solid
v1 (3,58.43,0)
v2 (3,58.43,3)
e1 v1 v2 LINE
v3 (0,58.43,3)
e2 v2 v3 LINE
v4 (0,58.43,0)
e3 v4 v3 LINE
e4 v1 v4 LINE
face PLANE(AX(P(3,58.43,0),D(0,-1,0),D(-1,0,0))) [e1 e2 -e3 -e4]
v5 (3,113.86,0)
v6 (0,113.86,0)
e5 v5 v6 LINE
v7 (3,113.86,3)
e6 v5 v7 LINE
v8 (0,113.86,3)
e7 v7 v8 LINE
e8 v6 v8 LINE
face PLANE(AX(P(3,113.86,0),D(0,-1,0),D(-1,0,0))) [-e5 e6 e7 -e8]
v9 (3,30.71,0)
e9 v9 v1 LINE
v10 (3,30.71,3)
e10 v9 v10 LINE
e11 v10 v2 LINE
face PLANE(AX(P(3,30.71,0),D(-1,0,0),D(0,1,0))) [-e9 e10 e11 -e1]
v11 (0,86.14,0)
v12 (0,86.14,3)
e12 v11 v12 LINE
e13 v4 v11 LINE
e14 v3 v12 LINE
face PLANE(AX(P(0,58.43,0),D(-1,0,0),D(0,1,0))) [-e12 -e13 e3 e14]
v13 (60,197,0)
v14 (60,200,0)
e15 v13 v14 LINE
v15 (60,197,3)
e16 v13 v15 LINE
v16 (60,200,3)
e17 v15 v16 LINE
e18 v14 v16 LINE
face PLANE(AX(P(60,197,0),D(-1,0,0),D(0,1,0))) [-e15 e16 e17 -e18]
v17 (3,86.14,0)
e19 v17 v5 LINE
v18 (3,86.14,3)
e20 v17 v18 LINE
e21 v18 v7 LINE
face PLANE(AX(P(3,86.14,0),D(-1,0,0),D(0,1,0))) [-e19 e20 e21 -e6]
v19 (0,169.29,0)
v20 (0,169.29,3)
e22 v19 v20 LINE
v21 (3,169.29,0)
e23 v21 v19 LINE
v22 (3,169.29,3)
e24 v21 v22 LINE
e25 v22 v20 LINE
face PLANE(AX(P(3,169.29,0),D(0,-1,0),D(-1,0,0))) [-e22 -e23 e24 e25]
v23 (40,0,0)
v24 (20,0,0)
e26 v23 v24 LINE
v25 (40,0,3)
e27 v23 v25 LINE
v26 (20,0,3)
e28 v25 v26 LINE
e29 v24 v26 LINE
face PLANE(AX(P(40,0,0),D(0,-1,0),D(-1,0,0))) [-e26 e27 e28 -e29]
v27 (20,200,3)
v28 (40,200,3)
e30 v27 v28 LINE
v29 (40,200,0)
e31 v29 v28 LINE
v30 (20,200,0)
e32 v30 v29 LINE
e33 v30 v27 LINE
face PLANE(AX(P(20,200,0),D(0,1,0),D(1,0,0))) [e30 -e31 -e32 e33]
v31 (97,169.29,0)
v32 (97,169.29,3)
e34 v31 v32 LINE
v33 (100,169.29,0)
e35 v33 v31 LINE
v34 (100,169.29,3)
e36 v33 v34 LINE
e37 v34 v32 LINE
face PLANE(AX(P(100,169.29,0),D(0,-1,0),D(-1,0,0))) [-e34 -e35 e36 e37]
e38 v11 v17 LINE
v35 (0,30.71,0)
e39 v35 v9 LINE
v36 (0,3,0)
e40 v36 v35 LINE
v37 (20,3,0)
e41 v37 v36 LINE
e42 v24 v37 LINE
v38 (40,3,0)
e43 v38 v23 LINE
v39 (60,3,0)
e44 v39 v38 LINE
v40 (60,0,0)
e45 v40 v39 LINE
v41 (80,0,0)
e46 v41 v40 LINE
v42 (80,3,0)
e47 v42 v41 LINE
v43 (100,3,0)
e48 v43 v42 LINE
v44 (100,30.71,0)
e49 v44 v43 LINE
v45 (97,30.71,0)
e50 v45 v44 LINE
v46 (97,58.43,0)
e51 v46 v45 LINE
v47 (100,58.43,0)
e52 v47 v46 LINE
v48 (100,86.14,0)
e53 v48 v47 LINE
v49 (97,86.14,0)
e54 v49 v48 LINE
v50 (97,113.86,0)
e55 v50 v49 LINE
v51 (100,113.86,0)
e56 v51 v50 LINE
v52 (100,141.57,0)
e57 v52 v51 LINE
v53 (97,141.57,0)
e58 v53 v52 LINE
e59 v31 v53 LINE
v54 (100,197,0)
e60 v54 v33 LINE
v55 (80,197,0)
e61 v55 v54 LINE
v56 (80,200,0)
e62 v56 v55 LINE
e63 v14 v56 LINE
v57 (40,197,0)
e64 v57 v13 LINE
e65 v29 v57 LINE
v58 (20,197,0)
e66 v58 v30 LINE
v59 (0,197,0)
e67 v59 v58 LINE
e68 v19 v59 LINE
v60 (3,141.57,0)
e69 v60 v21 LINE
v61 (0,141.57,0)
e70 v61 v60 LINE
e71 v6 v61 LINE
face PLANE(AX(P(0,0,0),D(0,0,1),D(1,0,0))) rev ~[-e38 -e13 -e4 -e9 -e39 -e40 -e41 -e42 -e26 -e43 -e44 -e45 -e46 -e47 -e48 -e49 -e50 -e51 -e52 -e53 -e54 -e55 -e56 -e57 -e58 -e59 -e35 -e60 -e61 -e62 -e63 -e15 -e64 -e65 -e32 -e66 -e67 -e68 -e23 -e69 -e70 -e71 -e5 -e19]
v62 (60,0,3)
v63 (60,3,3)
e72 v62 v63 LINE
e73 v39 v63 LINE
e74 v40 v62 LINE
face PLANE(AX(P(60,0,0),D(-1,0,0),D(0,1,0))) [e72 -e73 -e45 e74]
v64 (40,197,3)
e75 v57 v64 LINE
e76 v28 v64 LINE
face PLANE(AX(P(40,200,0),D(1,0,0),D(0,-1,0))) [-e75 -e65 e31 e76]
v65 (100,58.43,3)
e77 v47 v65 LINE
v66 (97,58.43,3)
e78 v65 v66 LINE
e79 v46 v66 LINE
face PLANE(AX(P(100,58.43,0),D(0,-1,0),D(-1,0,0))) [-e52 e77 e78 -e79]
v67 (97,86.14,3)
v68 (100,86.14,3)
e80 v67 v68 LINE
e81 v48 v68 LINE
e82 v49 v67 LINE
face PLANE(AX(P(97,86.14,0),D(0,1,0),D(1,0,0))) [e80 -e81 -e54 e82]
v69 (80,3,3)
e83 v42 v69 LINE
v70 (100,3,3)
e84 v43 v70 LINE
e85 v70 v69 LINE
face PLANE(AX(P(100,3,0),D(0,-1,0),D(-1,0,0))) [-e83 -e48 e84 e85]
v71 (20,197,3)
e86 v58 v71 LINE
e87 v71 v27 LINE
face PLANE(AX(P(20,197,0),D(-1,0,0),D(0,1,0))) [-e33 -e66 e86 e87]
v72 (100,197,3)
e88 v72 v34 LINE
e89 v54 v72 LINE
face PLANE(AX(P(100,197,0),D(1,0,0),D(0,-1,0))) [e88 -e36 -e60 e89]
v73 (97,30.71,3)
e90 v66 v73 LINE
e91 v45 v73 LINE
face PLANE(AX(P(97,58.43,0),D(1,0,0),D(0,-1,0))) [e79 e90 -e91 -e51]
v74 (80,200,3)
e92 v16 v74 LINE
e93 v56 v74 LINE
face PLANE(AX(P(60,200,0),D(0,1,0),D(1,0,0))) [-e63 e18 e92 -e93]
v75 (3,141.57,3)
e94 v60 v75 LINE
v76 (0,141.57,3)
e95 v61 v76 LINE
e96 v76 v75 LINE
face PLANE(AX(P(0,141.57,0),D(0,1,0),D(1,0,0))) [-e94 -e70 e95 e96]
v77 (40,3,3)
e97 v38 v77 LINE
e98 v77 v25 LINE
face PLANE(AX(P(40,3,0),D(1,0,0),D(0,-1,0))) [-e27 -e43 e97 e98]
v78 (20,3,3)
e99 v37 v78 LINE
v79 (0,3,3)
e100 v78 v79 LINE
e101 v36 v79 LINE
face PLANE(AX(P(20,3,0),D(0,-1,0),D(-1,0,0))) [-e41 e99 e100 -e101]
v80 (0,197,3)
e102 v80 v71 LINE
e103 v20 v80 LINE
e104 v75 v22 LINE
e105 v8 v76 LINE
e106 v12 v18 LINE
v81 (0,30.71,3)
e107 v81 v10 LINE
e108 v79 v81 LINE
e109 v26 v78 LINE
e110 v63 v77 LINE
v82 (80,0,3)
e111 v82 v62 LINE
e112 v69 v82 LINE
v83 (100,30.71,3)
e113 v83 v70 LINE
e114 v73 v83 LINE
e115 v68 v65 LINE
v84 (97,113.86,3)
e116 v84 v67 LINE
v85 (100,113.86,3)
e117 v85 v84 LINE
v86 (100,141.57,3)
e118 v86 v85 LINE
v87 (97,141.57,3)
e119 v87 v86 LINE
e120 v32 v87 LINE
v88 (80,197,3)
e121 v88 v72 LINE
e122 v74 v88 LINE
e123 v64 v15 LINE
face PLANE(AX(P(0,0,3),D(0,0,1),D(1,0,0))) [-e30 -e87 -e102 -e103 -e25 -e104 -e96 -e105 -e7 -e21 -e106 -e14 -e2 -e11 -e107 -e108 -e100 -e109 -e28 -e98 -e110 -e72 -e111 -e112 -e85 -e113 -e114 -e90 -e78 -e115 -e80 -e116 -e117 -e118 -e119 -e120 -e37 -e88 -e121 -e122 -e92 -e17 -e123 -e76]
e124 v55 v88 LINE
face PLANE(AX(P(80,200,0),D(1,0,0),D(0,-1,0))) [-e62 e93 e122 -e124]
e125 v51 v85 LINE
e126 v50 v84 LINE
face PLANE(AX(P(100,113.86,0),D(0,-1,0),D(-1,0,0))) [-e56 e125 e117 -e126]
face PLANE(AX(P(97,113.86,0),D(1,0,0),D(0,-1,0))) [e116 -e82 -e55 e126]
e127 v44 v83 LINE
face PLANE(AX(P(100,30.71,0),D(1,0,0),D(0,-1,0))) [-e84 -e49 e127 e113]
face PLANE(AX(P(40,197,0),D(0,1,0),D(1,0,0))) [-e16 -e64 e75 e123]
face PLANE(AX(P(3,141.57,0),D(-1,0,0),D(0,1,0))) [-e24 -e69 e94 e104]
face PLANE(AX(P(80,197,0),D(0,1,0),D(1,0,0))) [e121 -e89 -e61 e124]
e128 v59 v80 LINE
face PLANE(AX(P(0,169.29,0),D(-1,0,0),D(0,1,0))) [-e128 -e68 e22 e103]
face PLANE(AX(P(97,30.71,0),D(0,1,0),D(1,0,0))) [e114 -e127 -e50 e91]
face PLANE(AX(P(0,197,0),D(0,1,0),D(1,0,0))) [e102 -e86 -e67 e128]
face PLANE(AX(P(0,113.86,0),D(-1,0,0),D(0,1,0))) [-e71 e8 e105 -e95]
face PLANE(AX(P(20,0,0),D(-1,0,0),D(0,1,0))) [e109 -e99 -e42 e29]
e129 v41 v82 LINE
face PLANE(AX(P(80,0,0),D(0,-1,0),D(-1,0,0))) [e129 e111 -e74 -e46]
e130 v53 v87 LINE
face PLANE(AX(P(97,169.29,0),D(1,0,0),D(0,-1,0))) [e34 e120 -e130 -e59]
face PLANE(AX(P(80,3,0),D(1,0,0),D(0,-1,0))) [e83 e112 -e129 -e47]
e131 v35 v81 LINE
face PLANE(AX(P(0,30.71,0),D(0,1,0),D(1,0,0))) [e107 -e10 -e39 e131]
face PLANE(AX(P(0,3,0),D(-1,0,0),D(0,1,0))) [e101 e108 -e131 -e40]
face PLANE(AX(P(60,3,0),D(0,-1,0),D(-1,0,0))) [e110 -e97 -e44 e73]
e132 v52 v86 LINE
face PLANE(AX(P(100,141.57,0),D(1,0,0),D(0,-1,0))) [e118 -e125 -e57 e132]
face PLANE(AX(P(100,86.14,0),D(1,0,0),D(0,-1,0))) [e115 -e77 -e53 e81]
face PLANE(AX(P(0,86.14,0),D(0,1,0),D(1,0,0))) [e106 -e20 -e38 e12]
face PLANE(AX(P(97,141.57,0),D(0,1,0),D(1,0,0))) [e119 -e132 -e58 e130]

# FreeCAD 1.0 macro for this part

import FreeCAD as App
import Part
import Sketcher
Q = App.Units.Quantity


def add_polygon(sketch, points):
    """Adds a closed chain of lines whose ends are joined by coincident constraints."""
    first, n = sketch.GeometryCount, len(points)
    for a, b in zip(points, points[1:] + points[:1]):
        sketch.addGeometry(Part.LineSegment(App.Vector(*a, 0), App.Vector(*b, 0)), False)
    for i in range(n):
        sketch.addConstraint(Sketcher.Constraint("Coincident", first + i, 2, first + (i + 1) % n, 1))

doc = App.newDocument("Part")
params = doc.addObject("Spreadsheet::Sheet", "Params")
for row, (alias, value) in enumerate([
    ("sketch1_width", "20 mm"),
    ("sketch1_width2", "3 mm"),
    ("sketch1_height", "27.71 mm"),
    ("sketch1_height2", "27.72 mm"),
    ("pad1_length", "3 mm"),
], start=1):
    params.set(f"A{row}", alias)
    params.set(f"B{row}", "=" + value)
    params.setAlias(f"B{row}", alias)

body = doc.addObject("PartDesign::Body", "Body")

# Sketch on XY plane
sketch1 = body.newObject("Sketcher::SketchObject", "Sketch")
sketch1.AttachmentSupport = (doc.getObject("XY_Plane"), [""])
sketch1.MapMode = "FlatFace"
add_polygon(sketch1, [(20, 3), (20, 0), (40, 0), (40, 3), (60, 3), (60, 0), (80, 0), (80, 3), (100, 3), (100, 30.71), (97, 30.71), (97, 58.43), (100, 58.43), (100, 86.14), (97, 86.14), (97, 113.86), (100, 113.86), (100, 141.57), (97, 141.57), (97, 169.29), (100, 169.29), (100, 197), (80, 197), (80, 200), (60, 200), (60, 197), (40, 197), (40, 200), (20, 200), (20, 197), (0, 197), (0, 169.29), (3, 169.29), (3, 141.57), (0, 141.57), (0, 113.86), (3, 113.86), (3, 86.14), (0, 86.14), (0, 58.43), (3, 58.43), (3, 30.71), (0, 30.71), (0, 3)])  # lines 0-43
sketch1.addConstraint([
    Sketcher.Constraint("Vertical", 0),
    Sketcher.Constraint("Horizontal", 1),
    Sketcher.Constraint("Vertical", 2),
    Sketcher.Constraint("Horizontal", 3),
    Sketcher.Constraint("Vertical", 4),
    Sketcher.Constraint("Horizontal", 5),
    Sketcher.Constraint("Vertical", 6),
    Sketcher.Constraint("Horizontal", 7),
    Sketcher.Constraint("Vertical", 8),
    Sketcher.Constraint("Horizontal", 9),
    Sketcher.Constraint("Vertical", 10),
    Sketcher.Constraint("Horizontal", 11),
    Sketcher.Constraint("Vertical", 12),
    Sketcher.Constraint("Horizontal", 13),
    Sketcher.Constraint("Vertical", 14),
    Sketcher.Constraint("Horizontal", 15),
    Sketcher.Constraint("Vertical", 16),
    Sketcher.Constraint("Horizontal", 17),
    Sketcher.Constraint("Vertical", 18),
    Sketcher.Constraint("Horizontal", 19),
    Sketcher.Constraint("Vertical", 20),
    Sketcher.Constraint("Horizontal", 21),
    Sketcher.Constraint("Vertical", 22),
    Sketcher.Constraint("Horizontal", 23),
    Sketcher.Constraint("Vertical", 24),
    Sketcher.Constraint("Horizontal", 25),
    Sketcher.Constraint("Vertical", 26),
    Sketcher.Constraint("Horizontal", 27),
    Sketcher.Constraint("Vertical", 28),
    Sketcher.Constraint("Horizontal", 29),
    Sketcher.Constraint("Vertical", 30),
    Sketcher.Constraint("Horizontal", 31),
    Sketcher.Constraint("Vertical", 32),
    Sketcher.Constraint("Horizontal", 33),
    Sketcher.Constraint("Vertical", 34),
    Sketcher.Constraint("Horizontal", 35),
    Sketcher.Constraint("Vertical", 36),
    Sketcher.Constraint("Horizontal", 37),
    Sketcher.Constraint("Vertical", 38),
    Sketcher.Constraint("Horizontal", 39),
    Sketcher.Constraint("Vertical", 40),
    Sketcher.Constraint("Horizontal", 41),
    Sketcher.Constraint("Vertical", 42),
    Sketcher.Constraint("Horizontal", 43),
    Sketcher.Constraint("PointOnObject", 0, 2, -1),
    Sketcher.Constraint("PointOnObject", 4, 2, -1),
    Sketcher.Constraint("PointOnObject", 29, 2, -2),
    Sketcher.Constraint("PointOnObject", 33, 2, -2),
    Sketcher.Constraint("PointOnObject", 37, 2, -2),
    Sketcher.Constraint("PointOnObject", 41, 2, -2),
    Sketcher.Constraint("Horizontal", 3, 2, 6, 2),
    Sketcher.Constraint("Horizontal", 21, 2, 24, 2),
    Sketcher.Constraint("Horizontal", 23, 2, 26, 2),
    Sketcher.Constraint("Horizontal", 25, 2, 28, 2),
    Sketcher.Constraint("Horizontal", 19, 2, 30, 2),
    Sketcher.Constraint("Horizontal", 17, 2, 32, 2),
    Sketcher.Constraint("Horizontal", 15, 2, 34, 2),
    Sketcher.Constraint("Horizontal", 13, 2, 36, 2),
    Sketcher.Constraint("Horizontal", 11, 2, 38, 2),
    Sketcher.Constraint("Horizontal", 9, 2, 40, 2),
    Sketcher.Constraint("Horizontal", 7, 2, 42, 2),
    Sketcher.Constraint("Vertical", 8, 2, 11, 2),
    Sketcher.Constraint("Vertical", 10, 2, 13, 2),
    Sketcher.Constraint("Vertical", 12, 2, 15, 2),
    Sketcher.Constraint("Vertical", 14, 2, 17, 2),
    Sketcher.Constraint("Vertical", 16, 2, 19, 2),
    Sketcher.Constraint("Vertical", 6, 2, 21, 2),
    Sketcher.Constraint("Vertical", 4, 2, 23, 2),
    Sketcher.Constraint("Vertical", 2, 2, 25, 2),
    Sketcher.Constraint("Vertical", 0, 2, 27, 2),
    Sketcher.Constraint("Vertical", 32, 2, 35, 2),
    Sketcher.Constraint("Vertical", 36, 2, 39, 2),
    Sketcher.Constraint("Equal", 1, 3),
    Sketcher.Constraint("Equal", 3, 5),
    Sketcher.Constraint("Equal", 5, 7),
    Sketcher.Constraint("Equal", 27, 29),
    Sketcher.Constraint("Equal", 19, 31),
    Sketcher.Constraint("Equal", 41, 0),
    Sketcher.Constraint("Equal", 8, 12),
    Sketcher.Constraint("Equal", 10, 14),
    Sketcher.Constraint("Equal", 12, 16),
    Sketcher.Constraint("Equal", 14, 18),
    Sketcher.Constraint("Equal", 16, 20),
    Sketcher.Constraint("Equal", 6, 22),
    Sketcher.Constraint("DistanceX", 1, 1, 1, 2, Q("20 mm")),
    Sketcher.Constraint("DistanceX", 9, 2, 9, 1, Q("3 mm")),
    Sketcher.Constraint("DistanceY", 8, 1, 8, 2, Q("27.71 mm")),
    Sketcher.Constraint("DistanceY", 10, 1, 10, 2, Q("27.72 mm")),
])
sketch1.setExpression("Constraints[128]", "Params.sketch1_width")
sketch1.setExpression("Constraints[129]", "Params.sketch1_width2")
sketch1.setExpression("Constraints[130]", "Params.sketch1_height")
sketch1.setExpression("Constraints[131]", "Params.sketch1_height2")
pad1 = body.newObject("PartDesign::Pad", "Pad")
pad1.Profile = sketch1
pad1.setExpression("Length", "Params.pad1_length")

doc.recompute()
